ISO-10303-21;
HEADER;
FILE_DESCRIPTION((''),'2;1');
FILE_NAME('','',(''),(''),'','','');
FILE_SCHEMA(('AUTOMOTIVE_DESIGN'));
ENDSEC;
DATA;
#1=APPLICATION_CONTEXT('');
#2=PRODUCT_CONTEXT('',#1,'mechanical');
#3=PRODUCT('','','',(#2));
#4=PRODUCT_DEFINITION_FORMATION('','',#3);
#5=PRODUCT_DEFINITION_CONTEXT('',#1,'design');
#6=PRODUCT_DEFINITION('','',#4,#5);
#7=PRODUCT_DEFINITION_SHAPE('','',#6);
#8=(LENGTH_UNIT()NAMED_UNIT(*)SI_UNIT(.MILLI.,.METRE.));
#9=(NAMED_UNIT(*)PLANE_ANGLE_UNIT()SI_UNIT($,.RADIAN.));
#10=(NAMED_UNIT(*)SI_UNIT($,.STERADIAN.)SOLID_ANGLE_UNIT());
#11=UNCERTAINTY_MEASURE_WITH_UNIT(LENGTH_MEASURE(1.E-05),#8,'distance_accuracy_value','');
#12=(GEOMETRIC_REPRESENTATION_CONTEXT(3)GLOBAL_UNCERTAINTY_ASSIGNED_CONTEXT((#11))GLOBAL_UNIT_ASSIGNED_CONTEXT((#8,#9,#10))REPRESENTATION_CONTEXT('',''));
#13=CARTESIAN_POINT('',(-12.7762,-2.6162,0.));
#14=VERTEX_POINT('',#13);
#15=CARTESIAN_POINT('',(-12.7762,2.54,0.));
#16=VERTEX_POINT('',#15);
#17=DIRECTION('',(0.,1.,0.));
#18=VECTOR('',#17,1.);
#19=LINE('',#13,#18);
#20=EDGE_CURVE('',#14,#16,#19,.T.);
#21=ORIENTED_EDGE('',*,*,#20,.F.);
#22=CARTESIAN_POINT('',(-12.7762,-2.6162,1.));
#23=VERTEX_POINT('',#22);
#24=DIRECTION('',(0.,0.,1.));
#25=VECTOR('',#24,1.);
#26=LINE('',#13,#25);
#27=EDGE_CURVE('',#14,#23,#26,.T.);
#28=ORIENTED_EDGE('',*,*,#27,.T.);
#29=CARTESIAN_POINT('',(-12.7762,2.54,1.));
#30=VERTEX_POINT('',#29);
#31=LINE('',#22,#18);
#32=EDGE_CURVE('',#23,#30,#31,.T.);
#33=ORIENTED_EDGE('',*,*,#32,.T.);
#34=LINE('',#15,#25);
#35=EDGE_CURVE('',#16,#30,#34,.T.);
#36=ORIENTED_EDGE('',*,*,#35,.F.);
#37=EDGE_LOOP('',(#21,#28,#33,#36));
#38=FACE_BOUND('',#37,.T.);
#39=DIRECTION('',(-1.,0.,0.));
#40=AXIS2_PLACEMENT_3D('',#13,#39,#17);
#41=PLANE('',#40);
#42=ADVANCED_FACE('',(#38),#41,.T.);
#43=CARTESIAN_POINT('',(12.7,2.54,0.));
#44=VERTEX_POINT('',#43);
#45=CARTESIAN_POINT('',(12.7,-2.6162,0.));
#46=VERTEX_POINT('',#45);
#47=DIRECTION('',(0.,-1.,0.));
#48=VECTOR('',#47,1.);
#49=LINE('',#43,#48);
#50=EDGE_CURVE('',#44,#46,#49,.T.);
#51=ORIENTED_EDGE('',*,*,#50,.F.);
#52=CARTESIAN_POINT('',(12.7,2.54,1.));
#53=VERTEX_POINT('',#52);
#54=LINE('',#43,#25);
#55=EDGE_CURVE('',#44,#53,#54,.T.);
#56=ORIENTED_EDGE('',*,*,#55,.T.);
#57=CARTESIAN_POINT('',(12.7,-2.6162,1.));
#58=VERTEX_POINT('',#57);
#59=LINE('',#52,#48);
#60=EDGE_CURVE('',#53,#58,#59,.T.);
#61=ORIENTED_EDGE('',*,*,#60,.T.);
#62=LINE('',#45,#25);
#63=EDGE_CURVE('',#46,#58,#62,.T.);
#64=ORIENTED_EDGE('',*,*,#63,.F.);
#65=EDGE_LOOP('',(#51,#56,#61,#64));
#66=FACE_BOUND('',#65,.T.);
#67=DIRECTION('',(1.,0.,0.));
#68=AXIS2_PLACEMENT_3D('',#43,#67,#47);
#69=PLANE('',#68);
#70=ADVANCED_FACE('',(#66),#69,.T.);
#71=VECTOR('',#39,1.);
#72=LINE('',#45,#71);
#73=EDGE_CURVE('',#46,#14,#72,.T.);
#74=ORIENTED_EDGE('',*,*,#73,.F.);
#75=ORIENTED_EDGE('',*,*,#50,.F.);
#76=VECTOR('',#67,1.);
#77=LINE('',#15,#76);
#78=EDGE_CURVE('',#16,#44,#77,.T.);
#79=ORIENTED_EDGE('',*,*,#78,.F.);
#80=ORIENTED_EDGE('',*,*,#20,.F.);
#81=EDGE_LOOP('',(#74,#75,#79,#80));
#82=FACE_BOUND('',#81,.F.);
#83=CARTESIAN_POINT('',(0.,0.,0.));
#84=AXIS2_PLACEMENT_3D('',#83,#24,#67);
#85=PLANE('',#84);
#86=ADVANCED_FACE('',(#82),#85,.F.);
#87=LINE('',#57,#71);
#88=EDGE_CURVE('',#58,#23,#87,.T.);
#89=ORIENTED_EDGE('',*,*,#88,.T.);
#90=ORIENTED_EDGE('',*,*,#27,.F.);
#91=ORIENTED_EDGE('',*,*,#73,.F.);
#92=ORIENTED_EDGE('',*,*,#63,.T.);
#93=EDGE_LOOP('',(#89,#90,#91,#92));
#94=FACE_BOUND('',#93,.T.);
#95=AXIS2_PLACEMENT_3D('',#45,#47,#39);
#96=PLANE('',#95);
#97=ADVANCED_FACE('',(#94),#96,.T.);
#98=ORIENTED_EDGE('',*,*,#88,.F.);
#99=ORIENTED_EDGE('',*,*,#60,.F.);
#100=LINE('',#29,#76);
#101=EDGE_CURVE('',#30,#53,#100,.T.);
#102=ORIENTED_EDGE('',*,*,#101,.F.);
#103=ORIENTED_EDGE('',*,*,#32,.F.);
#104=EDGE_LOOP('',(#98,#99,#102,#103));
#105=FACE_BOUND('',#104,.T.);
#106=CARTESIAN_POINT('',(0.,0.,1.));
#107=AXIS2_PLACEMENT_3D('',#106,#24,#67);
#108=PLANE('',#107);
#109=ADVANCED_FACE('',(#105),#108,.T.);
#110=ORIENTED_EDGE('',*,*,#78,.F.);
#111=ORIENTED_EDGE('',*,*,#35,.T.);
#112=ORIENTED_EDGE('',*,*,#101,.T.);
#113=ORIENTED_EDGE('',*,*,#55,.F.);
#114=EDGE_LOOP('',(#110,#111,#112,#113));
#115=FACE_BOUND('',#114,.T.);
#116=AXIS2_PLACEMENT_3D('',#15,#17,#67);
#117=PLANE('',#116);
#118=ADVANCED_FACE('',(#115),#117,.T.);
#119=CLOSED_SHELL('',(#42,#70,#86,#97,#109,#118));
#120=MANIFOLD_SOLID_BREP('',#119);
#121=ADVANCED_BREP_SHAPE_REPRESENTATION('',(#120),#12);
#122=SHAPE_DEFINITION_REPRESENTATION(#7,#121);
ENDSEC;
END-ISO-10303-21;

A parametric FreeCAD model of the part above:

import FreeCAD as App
import Part
import Sketcher

V = App.Vector
Q = App.Units.Quantity

doc = App.newDocument("Part")
body = doc.addObject("PartDesign::Body", "Body")

# Sketch on XY plane
sketch1 = body.newObject("Sketcher::SketchObject", "Sketch")
sketch1.AttachmentSupport = (doc.getObject("XY_Plane"), [""])
sketch1.MapMode = "FlatFace"
sketch1.addGeometry([
    Part.LineSegment(V(12.7, 2.54, 0), V(-12.7762, 2.54, 0)),
    Part.LineSegment(V(-12.7762, 2.54, 0), V(-12.7762, -2.6162, 0)),
    Part.LineSegment(V(-12.7762, -2.6162, 0), V(12.7, -2.6162, 0)),
    Part.LineSegment(V(12.7, -2.6162, 0), V(12.7, 2.54, 0)),
], False)
sketch1.addConstraint([
    Sketcher.Constraint("Coincident", 0, 2, 1, 1),
    Sketcher.Constraint("Coincident", 1, 2, 2, 1),
    Sketcher.Constraint("Coincident", 2, 2, 3, 1),
    Sketcher.Constraint("Coincident", 3, 2, 0, 1),
    Sketcher.Constraint("Horizontal", 0),
    Sketcher.Constraint("Vertical", 1),
    Sketcher.Constraint("Horizontal", 2),
    Sketcher.Constraint("Vertical", 3),
    Sketcher.Constraint("DistanceY", -1, 1, 0, 2, Q("0.1 in")),
    Sketcher.Constraint("DistanceX", -1, 1, 2, 2, Q("0.5 in")),
    Sketcher.Constraint("DistanceX", 0, 2, 0, 1, Q("1.003 in")),
    Sketcher.Constraint("DistanceY", 1, 2, 1, 1, Q("0.203 in")),
])
pad1 = body.newObject("PartDesign::Pad", "Pad")
pad1.Profile = sketch1
pad1.Length = 1

doc.recompute()
